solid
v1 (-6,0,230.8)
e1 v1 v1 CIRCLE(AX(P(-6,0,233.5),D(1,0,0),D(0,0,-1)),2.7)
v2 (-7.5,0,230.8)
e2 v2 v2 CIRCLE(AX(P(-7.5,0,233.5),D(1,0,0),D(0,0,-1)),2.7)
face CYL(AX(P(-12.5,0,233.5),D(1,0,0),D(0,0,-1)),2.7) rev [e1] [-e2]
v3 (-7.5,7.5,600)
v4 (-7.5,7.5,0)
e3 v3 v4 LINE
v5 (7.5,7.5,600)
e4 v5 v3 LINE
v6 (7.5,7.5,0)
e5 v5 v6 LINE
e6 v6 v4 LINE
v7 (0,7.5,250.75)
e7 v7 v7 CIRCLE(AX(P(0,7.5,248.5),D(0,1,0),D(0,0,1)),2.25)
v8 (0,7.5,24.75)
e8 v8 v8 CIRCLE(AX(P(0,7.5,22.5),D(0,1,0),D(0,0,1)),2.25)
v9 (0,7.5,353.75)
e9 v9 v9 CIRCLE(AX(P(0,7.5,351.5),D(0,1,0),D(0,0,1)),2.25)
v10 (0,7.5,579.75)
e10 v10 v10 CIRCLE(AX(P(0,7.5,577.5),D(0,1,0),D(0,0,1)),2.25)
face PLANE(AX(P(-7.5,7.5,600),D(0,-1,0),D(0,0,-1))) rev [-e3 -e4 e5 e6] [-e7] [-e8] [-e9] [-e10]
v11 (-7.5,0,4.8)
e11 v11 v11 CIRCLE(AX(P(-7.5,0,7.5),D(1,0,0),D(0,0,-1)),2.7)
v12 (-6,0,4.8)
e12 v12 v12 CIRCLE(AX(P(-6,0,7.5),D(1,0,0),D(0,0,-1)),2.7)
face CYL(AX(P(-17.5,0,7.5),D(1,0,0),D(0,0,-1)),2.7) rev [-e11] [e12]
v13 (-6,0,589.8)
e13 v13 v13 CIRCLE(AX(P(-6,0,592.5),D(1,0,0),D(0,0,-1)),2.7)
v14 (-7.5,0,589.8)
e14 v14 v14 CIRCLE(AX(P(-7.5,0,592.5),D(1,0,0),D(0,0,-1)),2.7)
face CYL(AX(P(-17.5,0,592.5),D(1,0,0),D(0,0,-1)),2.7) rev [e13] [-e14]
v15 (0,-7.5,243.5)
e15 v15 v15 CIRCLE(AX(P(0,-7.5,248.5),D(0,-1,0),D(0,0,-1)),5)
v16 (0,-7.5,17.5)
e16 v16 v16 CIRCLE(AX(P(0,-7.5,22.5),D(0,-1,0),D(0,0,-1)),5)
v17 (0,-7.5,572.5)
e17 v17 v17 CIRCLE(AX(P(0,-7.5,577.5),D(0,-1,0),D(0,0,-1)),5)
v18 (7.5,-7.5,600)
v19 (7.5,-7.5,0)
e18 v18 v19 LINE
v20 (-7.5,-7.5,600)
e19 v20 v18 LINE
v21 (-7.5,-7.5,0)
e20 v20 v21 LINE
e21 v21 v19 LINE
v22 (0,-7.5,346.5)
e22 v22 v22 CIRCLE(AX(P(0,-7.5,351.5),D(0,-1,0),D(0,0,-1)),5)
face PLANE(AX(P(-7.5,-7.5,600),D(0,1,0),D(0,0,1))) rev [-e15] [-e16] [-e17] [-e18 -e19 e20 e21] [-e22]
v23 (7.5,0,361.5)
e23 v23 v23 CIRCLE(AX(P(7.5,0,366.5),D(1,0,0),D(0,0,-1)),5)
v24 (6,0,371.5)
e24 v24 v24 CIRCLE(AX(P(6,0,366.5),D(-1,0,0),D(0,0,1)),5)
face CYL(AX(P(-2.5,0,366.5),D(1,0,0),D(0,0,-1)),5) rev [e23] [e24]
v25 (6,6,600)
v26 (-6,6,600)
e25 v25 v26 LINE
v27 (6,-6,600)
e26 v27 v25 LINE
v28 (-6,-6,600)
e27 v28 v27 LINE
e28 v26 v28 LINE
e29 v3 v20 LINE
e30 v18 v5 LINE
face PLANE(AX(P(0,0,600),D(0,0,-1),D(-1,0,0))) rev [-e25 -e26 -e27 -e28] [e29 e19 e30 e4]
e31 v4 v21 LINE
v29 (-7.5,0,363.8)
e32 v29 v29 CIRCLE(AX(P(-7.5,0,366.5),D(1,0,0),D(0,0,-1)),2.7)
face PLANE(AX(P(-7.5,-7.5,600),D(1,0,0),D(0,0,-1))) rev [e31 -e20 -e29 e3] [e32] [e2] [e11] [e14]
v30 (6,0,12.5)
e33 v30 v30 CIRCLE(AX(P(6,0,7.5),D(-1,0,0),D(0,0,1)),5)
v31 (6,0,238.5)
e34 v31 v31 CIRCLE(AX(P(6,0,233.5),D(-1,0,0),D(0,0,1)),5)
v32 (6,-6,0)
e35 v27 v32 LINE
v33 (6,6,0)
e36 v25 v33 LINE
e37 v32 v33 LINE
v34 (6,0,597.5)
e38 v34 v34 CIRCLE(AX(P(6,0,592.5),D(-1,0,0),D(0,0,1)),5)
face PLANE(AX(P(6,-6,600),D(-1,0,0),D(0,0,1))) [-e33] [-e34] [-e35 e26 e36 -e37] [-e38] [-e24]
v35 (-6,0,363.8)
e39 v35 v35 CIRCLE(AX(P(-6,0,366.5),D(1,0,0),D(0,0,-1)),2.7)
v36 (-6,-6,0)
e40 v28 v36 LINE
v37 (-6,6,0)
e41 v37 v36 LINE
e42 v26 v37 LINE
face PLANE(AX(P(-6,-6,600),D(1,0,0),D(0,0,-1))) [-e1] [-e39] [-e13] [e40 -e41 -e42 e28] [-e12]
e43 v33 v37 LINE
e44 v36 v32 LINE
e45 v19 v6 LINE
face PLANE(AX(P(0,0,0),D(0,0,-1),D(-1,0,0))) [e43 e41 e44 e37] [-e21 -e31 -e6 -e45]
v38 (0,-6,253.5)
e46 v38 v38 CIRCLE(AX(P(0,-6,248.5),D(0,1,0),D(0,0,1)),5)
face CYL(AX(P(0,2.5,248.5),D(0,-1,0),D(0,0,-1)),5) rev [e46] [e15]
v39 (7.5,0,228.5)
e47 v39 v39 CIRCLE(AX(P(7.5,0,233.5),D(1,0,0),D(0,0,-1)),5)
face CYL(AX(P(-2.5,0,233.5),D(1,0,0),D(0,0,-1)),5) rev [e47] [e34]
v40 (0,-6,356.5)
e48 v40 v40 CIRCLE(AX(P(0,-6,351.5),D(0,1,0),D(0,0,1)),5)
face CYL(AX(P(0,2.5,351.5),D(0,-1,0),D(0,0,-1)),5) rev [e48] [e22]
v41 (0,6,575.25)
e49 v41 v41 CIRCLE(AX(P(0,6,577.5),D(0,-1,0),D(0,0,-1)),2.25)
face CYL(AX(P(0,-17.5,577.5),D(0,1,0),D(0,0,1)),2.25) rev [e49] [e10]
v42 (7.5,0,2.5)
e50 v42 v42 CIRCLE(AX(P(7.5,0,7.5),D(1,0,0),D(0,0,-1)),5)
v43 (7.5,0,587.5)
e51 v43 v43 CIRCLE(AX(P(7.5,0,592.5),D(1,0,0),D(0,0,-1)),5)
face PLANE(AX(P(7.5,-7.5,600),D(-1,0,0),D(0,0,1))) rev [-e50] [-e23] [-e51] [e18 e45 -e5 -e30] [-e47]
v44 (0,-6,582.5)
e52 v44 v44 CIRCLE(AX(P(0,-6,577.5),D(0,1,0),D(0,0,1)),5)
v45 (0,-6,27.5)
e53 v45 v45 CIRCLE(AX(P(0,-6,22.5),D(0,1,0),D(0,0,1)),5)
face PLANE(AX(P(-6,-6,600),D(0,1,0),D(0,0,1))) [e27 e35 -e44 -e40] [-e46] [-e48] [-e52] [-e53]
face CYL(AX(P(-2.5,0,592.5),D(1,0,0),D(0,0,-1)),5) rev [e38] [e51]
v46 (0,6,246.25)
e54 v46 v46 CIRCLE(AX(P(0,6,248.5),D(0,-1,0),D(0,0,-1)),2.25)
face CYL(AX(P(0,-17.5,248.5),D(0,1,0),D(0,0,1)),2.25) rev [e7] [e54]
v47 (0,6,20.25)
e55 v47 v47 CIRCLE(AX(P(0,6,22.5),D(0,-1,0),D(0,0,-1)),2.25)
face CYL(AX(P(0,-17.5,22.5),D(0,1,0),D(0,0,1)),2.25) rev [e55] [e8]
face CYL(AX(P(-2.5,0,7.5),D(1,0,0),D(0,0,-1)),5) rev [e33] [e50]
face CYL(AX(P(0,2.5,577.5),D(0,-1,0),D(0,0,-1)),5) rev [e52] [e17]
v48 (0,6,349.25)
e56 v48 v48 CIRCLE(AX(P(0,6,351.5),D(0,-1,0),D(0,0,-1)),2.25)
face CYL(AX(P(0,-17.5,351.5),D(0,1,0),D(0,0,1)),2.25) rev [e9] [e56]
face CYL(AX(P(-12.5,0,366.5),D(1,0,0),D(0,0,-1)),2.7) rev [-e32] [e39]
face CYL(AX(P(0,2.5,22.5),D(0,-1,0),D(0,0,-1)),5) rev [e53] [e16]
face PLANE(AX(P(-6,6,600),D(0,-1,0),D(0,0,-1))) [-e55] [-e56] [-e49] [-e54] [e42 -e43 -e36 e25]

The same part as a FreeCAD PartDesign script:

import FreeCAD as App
import Part
import Sketcher
from FreeCAD import Vector

doc = App.newDocument("Part")
body = doc.addObject("PartDesign::Body", "Body")

# Sketch on XY plane
sketch1 = body.newObject("Sketcher::SketchObject", "Sketch")
sketch1.AttachmentSupport = (doc.getObject("XY_Plane"), [""])
sketch1.MapMode = "FlatFace"
sketch1.addGeometry(Part.LineSegment(Vector(-8, 8, 0), Vector(-8, -8, 0)), False)
sketch1.addGeometry(Part.LineSegment(Vector(-8, -8, 0), Vector(8, -8, 0)), False)
sketch1.addGeometry(Part.LineSegment(Vector(8, -8, 0), Vector(8, 8, 0)), False)
sketch1.addGeometry(Part.LineSegment(Vector(8, 8, 0), Vector(-8, 8, 0)), False)
sketch1.addGeometry(Part.LineSegment(Vector(6, -6, 0), Vector(-6, -6, 0)), False)
sketch1.addGeometry(Part.LineSegment(Vector(-6, -6, 0), Vector(-6, 6, 0)), False)
sketch1.addGeometry(Part.LineSegment(Vector(-6, 6, 0), Vector(6, 6, 0)), False)
sketch1.addGeometry(Part.LineSegment(Vector(6, 6, 0), Vector(6, -6, 0)), False)
sketch1.addConstraint(Sketcher.Constraint("Coincident", 0, 2, 1, 1))
sketch1.addConstraint(Sketcher.Constraint("Coincident", 1, 2, 2, 1))
sketch1.addConstraint(Sketcher.Constraint("Coincident", 2, 2, 3, 1))
sketch1.addConstraint(Sketcher.Constraint("Coincident", 3, 2, 0, 1))
sketch1.addConstraint(Sketcher.Constraint("Coincident", 4, 2, 5, 1))
sketch1.addConstraint(Sketcher.Constraint("Coincident", 5, 2, 6, 1))
sketch1.addConstraint(Sketcher.Constraint("Coincident", 6, 2, 7, 1))
sketch1.addConstraint(Sketcher.Constraint("Coincident", 7, 2, 4, 1))
sketch1.addConstraint(Sketcher.Constraint("Vertical", 0))
sketch1.addConstraint(Sketcher.Constraint("Horizontal", 1))
sketch1.addConstraint(Sketcher.Constraint("Vertical", 2))
sketch1.addConstraint(Sketcher.Constraint("Horizontal", 3))
sketch1.addConstraint(Sketcher.Constraint("Horizontal", 4))
sketch1.addConstraint(Sketcher.Constraint("Vertical", 5))
sketch1.addConstraint(Sketcher.Constraint("Horizontal", 6))
sketch1.addConstraint(Sketcher.Constraint("Vertical", 7))
sketch1.addConstraint(Sketcher.Constraint("Symmetric", 0, 2, 2, 2, -1, 1))
sketch1.addConstraint(Sketcher.Constraint("Symmetric", 4, 2, 6, 2, -1, 1))
sketch1.addConstraint(Sketcher.Constraint("Equal", 3, 0))
sketch1.addConstraint(Sketcher.Constraint("Equal", 6, 5))
sketch1.addConstraint(Sketcher.Constraint("DistanceX", 1, 1, 1, 2, 15.0))
sketch1.addConstraint(Sketcher.Constraint("DistanceX", 4, 2, 4, 1, 12.0))
pad1 = body.newObject("PartDesign::Pad", "Pad")
pad1.Profile = sketch1
pad1.Length = 600

# Sketch on YZ plane
sketch2 = body.newObject("Sketcher::SketchObject", "Sketch001")
sketch2.AttachmentSupport = (doc.getObject("YZ_Plane"), [""])
sketch2.MapMode = "FlatFace"
sketch2.AttachmentOffset = App.Placement(Vector(0, 0, 7.5), App.Rotation())
sketch2.addGeometry(Part.Circle(Vector(0, 592.5, 0), Vector(0, 0, 1), 2.7), False)
sketch2.addGeometry(Part.Circle(Vector(0, 7.5, 0), Vector(0, 0, 1), 2.7), False)
sketch2.addConstraint(Sketcher.Constraint("Equal", 0, 1))
sketch2.addConstraint(Sketcher.Constraint("PointOnObject", 0, 3, -2))
sketch2.addConstraint(Sketcher.Constraint("PointOnObject", 1, 3, -2))
sketch2.addConstraint(Sketcher.Constraint("Diameter", 0, 5.4))
sketch2.addConstraint(Sketcher.Constraint("DistanceY", 1, 3, 0, 3, 585.0))
sketch2.addConstraint(Sketcher.Constraint("DistanceY", -1, 1, 0, 3, 592.5))
pocket1 = body.newObject("PartDesign::Pocket", "Pocket")
pocket1.Profile = sketch2
pocket1.Length = 25

# Sketch on XZ plane
sketch3 = body.newObject("Sketcher::SketchObject", "Sketch002")
sketch3.AttachmentSupport = (doc.getObject("XZ_Plane"), [""])
sketch3.MapMode = "FlatFace"
sketch3.AttachmentOffset = App.Placement(Vector(0, 0, -7.5), App.Rotation())
sketch3.addGeometry(Part.Circle(Vector(0, 22.5, 0), Vector(0, 0, 1), 2.2), False)
sketch3.addGeometry(Part.Circle(Vector(0, 577.5, 0), Vector(0, 0, 1), 2.2), False)
sketch3.addGeometry(Part.Circle(Vector(0, 248.5, 0), Vector(0, 0, 1), 2.2), False)
sketch3.addGeometry(Part.Circle(Vector(0, 351.5, 0), Vector(0, 0, 1), 2.2), False)
sketch3.addConstraint(Sketcher.Constraint("Equal", 0, 1))
sketch3.addConstraint(Sketcher.Constraint("Equal", 1, 2))
sketch3.addConstraint(Sketcher.Constraint("Equal", 2, 3))
sketch3.addConstraint(Sketcher.Constraint("PointOnObject", 0, 3, -2))
sketch3.addConstraint(Sketcher.Constraint("PointOnObject", 1, 3, -2))
sketch3.addConstraint(Sketcher.Constraint("PointOnObject", 2, 3, -2))
sketch3.addConstraint(Sketcher.Constraint("PointOnObject", 3, 3, -2))
sketch3.addConstraint(Sketcher.Constraint("Diameter", 0, 4.5))
sketch3.addConstraint(Sketcher.Constraint("DistanceY", 0, 3, 1, 3, 555.0))
sketch3.addConstraint(Sketcher.Constraint("DistanceY", 0, 3, 2, 3, 226.0))
sketch3.addConstraint(Sketcher.Constraint("DistanceY", 2, 3, 3, 3, 103.0))
sketch3.addConstraint(Sketcher.Constraint("DistanceY", -1, 1, 0, 3, 22.5))
pocket2 = body.newObject("PartDesign::Pocket", "Pocket001")
pocket2.Profile = sketch3
pocket2.Length = 25
pocket2.Reversed = True

# Sketch on YZ plane
sketch4 = body.newObject("Sketcher::SketchObject", "Sketch003")
sketch4.AttachmentSupport = (doc.getObject("YZ_Plane"), [""])
sketch4.MapMode = "FlatFace"
sketch4.AttachmentOffset = App.Placement(Vector(0, 0, 7.5), App.Rotation())
sketch4.addGeometry(Part.Circle(Vector(0, 366.5, 0), Vector(0, 0, 1), 2.7), False)
sketch4.addGeometry(Part.Circle(Vector(0, 233.5, 0), Vector(0, 0, 1), 2.7), False)
sketch4.addConstraint(Sketcher.Constraint("Equal", 0, 1))
sketch4.addConstraint(Sketcher.Constraint("PointOnObject", 0, 3, -2))
sketch4.addConstraint(Sketcher.Constraint("PointOnObject", 1, 3, -2))
sketch4.addConstraint(Sketcher.Constraint("Diameter", 0, 5.4))
sketch4.addConstraint(Sketcher.Constraint("DistanceY", 1, 3, 0, 3, 133.0))
sketch4.addConstraint(Sketcher.Constraint("DistanceY", -1, 1, 0, 3, 366.5))
pocket3 = body.newObject("PartDesign::Pocket", "Pocket002")
pocket3.Profile = sketch4
pocket3.Length = 20

# Sketch on YZ plane
sketch5 = body.newObject("Sketcher::SketchObject", "Sketch004")
sketch5.AttachmentSupport = (doc.getObject("YZ_Plane"), [""])
sketch5.MapMode = "FlatFace"
sketch5.AttachmentOffset = App.Placement(Vector(0, 0, 7.5), App.Rotation())
sketch5.addGeometry(Part.Circle(Vector(0, 592, 0), Vector(0, 0, 1), 5), False)
sketch5.addGeometry(Part.Circle(Vector(0, 366, 0), Vector(0, 0, 1), 5), False)
sketch5.addGeometry(Part.Circle(Vector(0, 234, 0), Vector(0, 0, 1), 5), False)
sketch5.addGeometry(Part.Circle(Vector(0, 8, 0), Vector(0, 0, 1), 5), False)
sketch5.addConstraint(Sketcher.Constraint("Equal", 0, 1))
sketch5.addConstraint(Sketcher.Constraint("Equal", 1, 2))
sketch5.addConstraint(Sketcher.Constraint("Equal", 2, 3))
sketch5.addConstraint(Sketcher.Constraint("PointOnObject", 0, 3, -2))
sketch5.addConstraint(Sketcher.Constraint("PointOnObject", 1, 3, -2))
sketch5.addConstraint(Sketcher.Constraint("PointOnObject", 2, 3, -2))
sketch5.addConstraint(Sketcher.Constraint("PointOnObject", 3, 3, -2))
sketch5.addConstraint(Sketcher.Constraint("Diameter", 0, 10.0))
sketch5.addConstraint(Sketcher.Constraint("DistanceY", 1, 3, 0, 3, 226.0))
sketch5.addConstraint(Sketcher.Constraint("DistanceY", 2, 3, 1, 3, 133.0))
sketch5.addConstraint(Sketcher.Constraint("DistanceY", 3, 3, 2, 3, 226.0))
sketch5.addConstraint(Sketcher.Constraint("DistanceY", -1, 1, 0, 3, 592.5))
pocket4 = body.newObject("PartDesign::Pocket", "Pocket003")
pocket4.Profile = sketch5
pocket4.Length = 10

# Sketch on XZ plane
sketch6 = body.newObject("Sketcher::SketchObject", "Sketch005")
sketch6.AttachmentSupport = (doc.getObject("XZ_Plane"), [""])
sketch6.MapMode = "FlatFace"
sketch6.AttachmentOffset = App.Placement(Vector(0, 0, 7.5), App.Rotation())
sketch6.addGeometry(Part.Circle(Vector(0, 578, 0), Vector(0, 0, 1), 5), False)
sketch6.addGeometry(Part.Circle(Vector(0, 22, 0), Vector(0, 0, 1), 5), False)
sketch6.addGeometry(Part.Circle(Vector(0, 248, 0), Vector(0, 0, 1), 5), False)
sketch6.addGeometry(Part.Circle(Vector(0, 352, 0), Vector(0, 0, 1), 5), False)
sketch6.addConstraint(Sketcher.Constraint("Equal", 0, 1))
sketch6.addConstraint(Sketcher.Constraint("Equal", 1, 2))
sketch6.addConstraint(Sketcher.Constraint("Equal", 2, 3))
sketch6.addConstraint(Sketcher.Constraint("PointOnObject", 0, 3, -2))
sketch6.addConstraint(Sketcher.Constraint("PointOnObject", 1, 3, -2))
sketch6.addConstraint(Sketcher.Constraint("PointOnObject", 2, 3, -2))
sketch6.addConstraint(Sketcher.Constraint("PointOnObject", 3, 3, -2))
sketch6.addConstraint(Sketcher.Constraint("Diameter", 0, 10.0))
sketch6.addConstraint(Sketcher.Constraint("DistanceY", 1, 3, 0, 3, 555.0))
sketch6.addConstraint(Sketcher.Constraint("DistanceY", 1, 3, 2, 3, 226.0))
sketch6.addConstraint(Sketcher.Constraint("DistanceY", 2, 3, 3, 3, 103.0))
sketch6.addConstraint(Sketcher.Constraint("DistanceY", -1, 1, 0, 3, 577.5))
pocket5 = body.newObject("PartDesign::Pocket", "Pocket004")
pocket5.Profile = sketch6
pocket5.Length = 10

doc.recompute()
